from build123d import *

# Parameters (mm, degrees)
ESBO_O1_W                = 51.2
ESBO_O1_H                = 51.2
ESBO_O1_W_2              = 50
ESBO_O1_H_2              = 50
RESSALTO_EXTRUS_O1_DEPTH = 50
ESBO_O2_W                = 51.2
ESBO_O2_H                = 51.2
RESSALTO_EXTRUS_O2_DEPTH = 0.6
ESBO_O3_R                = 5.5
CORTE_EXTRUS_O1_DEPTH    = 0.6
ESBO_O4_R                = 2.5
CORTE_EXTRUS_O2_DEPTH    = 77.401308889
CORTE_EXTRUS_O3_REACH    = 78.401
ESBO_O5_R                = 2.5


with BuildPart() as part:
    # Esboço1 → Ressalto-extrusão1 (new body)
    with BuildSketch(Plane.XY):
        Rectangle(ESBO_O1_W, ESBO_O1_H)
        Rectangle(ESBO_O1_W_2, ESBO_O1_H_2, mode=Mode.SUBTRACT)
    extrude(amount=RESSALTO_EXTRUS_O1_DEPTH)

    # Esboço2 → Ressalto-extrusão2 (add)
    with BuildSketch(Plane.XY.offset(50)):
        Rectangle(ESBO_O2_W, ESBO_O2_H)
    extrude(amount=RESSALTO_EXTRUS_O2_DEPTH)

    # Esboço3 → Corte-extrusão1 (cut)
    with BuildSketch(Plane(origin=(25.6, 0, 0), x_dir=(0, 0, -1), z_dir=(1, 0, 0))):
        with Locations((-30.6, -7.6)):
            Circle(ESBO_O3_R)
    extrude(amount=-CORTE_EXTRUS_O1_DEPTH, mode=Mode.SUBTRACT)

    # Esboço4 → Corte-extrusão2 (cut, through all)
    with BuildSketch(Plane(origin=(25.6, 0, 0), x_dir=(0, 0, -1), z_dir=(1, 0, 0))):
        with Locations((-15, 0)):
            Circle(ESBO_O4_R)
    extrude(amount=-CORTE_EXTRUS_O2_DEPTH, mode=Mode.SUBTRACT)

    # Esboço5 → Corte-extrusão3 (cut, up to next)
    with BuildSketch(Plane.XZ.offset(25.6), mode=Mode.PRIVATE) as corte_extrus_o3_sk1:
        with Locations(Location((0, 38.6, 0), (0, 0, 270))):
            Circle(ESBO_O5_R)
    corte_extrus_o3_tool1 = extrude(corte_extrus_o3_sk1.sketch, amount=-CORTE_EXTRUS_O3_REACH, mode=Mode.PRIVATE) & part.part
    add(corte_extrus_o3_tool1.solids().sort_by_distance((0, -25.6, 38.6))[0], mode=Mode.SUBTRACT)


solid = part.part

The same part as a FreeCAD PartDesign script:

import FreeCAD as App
import Part
import Sketcher

V = App.Vector


def add_polygon(sketch, points):
    """Adds a closed chain of lines whose ends are joined by coincident constraints."""
    first, n = sketch.GeometryCount, len(points)
    for a, b in zip(points, points[1:] + points[:1]):
        sketch.addGeometry(Part.LineSegment(App.Vector(*a, 0), App.Vector(*b, 0)), False)
    for i in range(n):
        sketch.addConstraint(Sketcher.Constraint("Coincident", first + i, 2, first + (i + 1) % n, 1))

doc = App.newDocument("Part")
body = doc.addObject("PartDesign::Body", "Body")

sketch1 = doc.addObject("Sketcher::SketchObject", "Sketch")
body.addObject(sketch1)
sketch1.AttachmentSupport = (doc.XY_Plane, [""])
sketch1.MapMode = "FlatFace"
add_polygon(sketch1, [(-25.6, 25.6), (-25.6, -25.6), (25.6, -25.6), (25.6, 25.6)])
add_polygon(sketch1, [(25, -25), (-25, -25), (-25, 25), (25, 25)])
sketch1.addConstraint([
    Sketcher.Constraint("Vertical", 0),
    Sketcher.Constraint("Horizontal", 1),
    Sketcher.Constraint("Vertical", 2),
    Sketcher.Constraint("Horizontal", 3),
    Sketcher.Constraint("Horizontal", 4),
    Sketcher.Constraint("Vertical", 5),
    Sketcher.Constraint("Horizontal", 6),
    Sketcher.Constraint("Vertical", 7),
    Sketcher.Constraint("Symmetric", 0, 2, 2, 2, -1, 1),
    Sketcher.Constraint("Symmetric", 4, 2, 6, 2, -1, 1),
    Sketcher.Constraint("Equal", 3, 0),
    Sketcher.Constraint("Equal", 6, 5),
    Sketcher.Constraint("DistanceX", 4, 2, 4, 1, 50.0),
    Sketcher.Constraint("DistanceX", 1, 1, 1, 2, 51.2),
])
pad1 = doc.addObject("PartDesign::Pad", "Pad")
body.addObject(pad1)
pad1.Profile = sketch1
pad1.Length = 50

sketch2 = doc.addObject("Sketcher::SketchObject", "Sketch001")
body.addObject(sketch2)
sketch2.AttachmentSupport = (doc.XY_Plane, [""])
sketch2.MapMode = "FlatFace"
sketch2.AttachmentOffset = App.Placement(V(0, 0, 50), App.Rotation())
add_polygon(sketch2, [(-25.6, 25.6), (-25.6, -25.6), (25.6, -25.6), (25.6, 25.6)])
sketch2.addConstraint([
    Sketcher.Constraint("Vertical", 0),
    Sketcher.Constraint("Horizontal", 1),
    Sketcher.Constraint("Vertical", 2),
    Sketcher.Constraint("Horizontal", 3),
    Sketcher.Constraint("Symmetric", 0, 2, 2, 2, -1, 1),
    Sketcher.Constraint("Equal", 3, 0),
    Sketcher.Constraint("DistanceX", 1, 1, 1, 2, 51.2),
])
pad2 = doc.addObject("PartDesign::Pad", "Pad001")
body.addObject(pad2)
pad2.Profile = sketch2
pad2.Length = 0.6

sketch3 = doc.addObject("Sketcher::SketchObject", "Sketch002")
body.addObject(sketch3)
sketch3.AttachmentSupport = (doc.YZ_Plane, [""])
sketch3.MapMode = "FlatFace"
sketch3.AttachmentOffset = App.Placement(V(0, 0, 25.6), App.Rotation())
sketch3.addGeometry(Part.Circle(V(-7.6, 30.6, 0), V(0, 0, 1), 5.5), False)
sketch3.addConstraint([
    Sketcher.Constraint("Diameter", 0, 11.0),
    Sketcher.Constraint("DistanceX", 0, 3, -1, 1, 7.6),
    Sketcher.Constraint("DistanceY", -1, 1, 0, 3, 30.6),
])
pocket1 = doc.addObject("PartDesign::Pocket", "Pocket")
body.addObject(pocket1)
pocket1.Profile = sketch3
pocket1.Length = 0.6

sketch4 = doc.addObject("Sketcher::SketchObject", "Sketch003")
body.addObject(sketch4)
sketch4.AttachmentSupport = (doc.YZ_Plane, [""])
sketch4.MapMode = "FlatFace"
sketch4.AttachmentOffset = App.Placement(V(0, 0, 25.6), App.Rotation())
sketch4.addGeometry(Part.Circle(V(0, 15, 0), V(0, 0, 1), 2.5), False)
sketch4.addConstraint([
    Sketcher.Constraint("PointOnObject", 0, 3, -2),
    Sketcher.Constraint("Diameter", 0, 5.0),
    Sketcher.Constraint("DistanceY", -1, 1, 0, 3, 15.0),
])
pocket2 = doc.addObject("PartDesign::Pocket", "Pocket001")
body.addObject(pocket2)
pocket2.Profile = sketch4
pocket2.Type = "ThroughAll"

sketch5 = doc.addObject("Sketcher::SketchObject", "Sketch004")
body.addObject(sketch5)
sketch5.AttachmentSupport = (doc.XZ_Plane, [""])
sketch5.MapMode = "FlatFace"
sketch5.AttachmentOffset = App.Placement(V(0, 0, 25.6), App.Rotation())
sketch5.addGeometry(Part.Circle(V(0, 38.6, 0), V(0, 0, 1), 2.5), False)
sketch5.addConstraint([
    Sketcher.Constraint("PointOnObject", 0, 3, -2),
    Sketcher.Constraint("Diameter", 0, 5.0),
    Sketcher.Constraint("DistanceY", -1, 1, 0, 3, 38.6),
])
pocket3 = doc.addObject("PartDesign::Pocket", "Pocket002")
body.addObject(pocket3)
pocket3.Profile = sketch5
pocket3.Type = "UpToFirst"

doc.recompute()
